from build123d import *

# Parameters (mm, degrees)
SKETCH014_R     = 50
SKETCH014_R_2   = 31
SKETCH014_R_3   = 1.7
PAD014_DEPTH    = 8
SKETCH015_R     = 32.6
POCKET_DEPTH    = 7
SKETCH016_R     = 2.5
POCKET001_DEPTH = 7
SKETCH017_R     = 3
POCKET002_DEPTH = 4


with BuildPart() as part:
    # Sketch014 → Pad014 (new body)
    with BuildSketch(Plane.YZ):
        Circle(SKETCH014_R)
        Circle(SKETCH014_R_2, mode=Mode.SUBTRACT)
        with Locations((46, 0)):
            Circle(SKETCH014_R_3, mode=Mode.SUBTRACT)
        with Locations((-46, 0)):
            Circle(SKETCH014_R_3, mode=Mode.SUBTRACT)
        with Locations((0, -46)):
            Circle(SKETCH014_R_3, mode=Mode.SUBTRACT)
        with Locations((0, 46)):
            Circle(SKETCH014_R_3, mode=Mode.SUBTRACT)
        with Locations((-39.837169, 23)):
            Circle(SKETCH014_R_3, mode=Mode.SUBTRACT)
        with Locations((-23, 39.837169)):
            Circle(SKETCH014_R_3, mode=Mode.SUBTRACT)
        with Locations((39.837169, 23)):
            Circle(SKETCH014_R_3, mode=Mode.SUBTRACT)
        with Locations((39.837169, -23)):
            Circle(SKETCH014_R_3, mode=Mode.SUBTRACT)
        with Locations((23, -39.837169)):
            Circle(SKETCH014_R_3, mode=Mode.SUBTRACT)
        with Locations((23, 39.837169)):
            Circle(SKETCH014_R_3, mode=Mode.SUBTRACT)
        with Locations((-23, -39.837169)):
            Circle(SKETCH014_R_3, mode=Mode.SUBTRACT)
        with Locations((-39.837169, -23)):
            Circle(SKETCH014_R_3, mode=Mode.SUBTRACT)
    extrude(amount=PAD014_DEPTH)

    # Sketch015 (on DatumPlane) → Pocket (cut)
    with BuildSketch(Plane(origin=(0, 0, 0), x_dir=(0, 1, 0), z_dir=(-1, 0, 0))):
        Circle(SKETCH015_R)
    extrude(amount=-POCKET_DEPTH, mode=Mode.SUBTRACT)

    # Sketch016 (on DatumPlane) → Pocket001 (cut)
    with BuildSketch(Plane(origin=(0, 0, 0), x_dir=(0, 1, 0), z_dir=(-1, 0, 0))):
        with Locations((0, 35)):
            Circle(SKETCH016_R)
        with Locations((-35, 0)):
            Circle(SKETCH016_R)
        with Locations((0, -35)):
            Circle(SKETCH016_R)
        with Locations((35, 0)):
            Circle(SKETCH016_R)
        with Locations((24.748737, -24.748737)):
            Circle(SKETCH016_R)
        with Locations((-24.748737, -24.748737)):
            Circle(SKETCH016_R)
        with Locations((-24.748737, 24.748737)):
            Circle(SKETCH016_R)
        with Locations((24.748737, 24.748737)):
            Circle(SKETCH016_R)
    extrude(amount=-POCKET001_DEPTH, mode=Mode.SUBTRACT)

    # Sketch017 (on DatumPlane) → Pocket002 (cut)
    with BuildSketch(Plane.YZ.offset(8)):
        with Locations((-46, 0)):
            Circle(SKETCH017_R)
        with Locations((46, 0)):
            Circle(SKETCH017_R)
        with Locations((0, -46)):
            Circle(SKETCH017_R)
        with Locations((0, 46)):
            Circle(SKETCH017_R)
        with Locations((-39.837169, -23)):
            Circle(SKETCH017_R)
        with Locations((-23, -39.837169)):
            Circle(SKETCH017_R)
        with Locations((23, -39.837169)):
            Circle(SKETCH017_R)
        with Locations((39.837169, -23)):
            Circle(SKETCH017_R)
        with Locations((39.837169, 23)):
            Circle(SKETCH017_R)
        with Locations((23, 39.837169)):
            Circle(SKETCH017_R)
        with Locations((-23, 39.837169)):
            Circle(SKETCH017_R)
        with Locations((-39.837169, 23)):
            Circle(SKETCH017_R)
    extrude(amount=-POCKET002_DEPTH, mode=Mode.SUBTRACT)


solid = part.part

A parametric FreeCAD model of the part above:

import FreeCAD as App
import Part
import Sketcher
Q = App.Units.Quantity

doc = App.newDocument("Part")
body = doc.addObject("PartDesign::Body", "Body")

sketch1 = body.newObject("Sketcher::SketchObject", "Sketch")
sketch1.AttachmentSupport = (doc.getObject("YZ_Plane"), [""])
sketch1.MapMode = "FlatFace"
sketch1.addGeometry(Part.Circle(App.Vector(0, 0, 0), App.Vector(0, 0, 1), 50), False)
sketch1.addGeometry(Part.Circle(App.Vector(-23, -39.8, 0), App.Vector(0, 0, 1), 1.7), False)
sketch1.addGeometry(Part.Circle(App.Vector(-39.8, -23, 0), App.Vector(0, 0, 1), 1.7), False)
sketch1.addGeometry(Part.Circle(App.Vector(0, -46, 0), App.Vector(0, 0, 1), 1.7), False)
sketch1.addGeometry(Part.Circle(App.Vector(23, -39.8, 0), App.Vector(0, 0, 1), 1.7), False)
sketch1.addGeometry(Part.Circle(App.Vector(39.8, -23, 0), App.Vector(0, 0, 1), 1.7), False)
sketch1.addGeometry(Part.Circle(App.Vector(-46, 0, 0), App.Vector(0, 0, 1), 1.7), False)
sketch1.addGeometry(Part.Circle(App.Vector(-39.8, 23, 0), App.Vector(0, 0, 1), 1.7), False)
sketch1.addGeometry(Part.Circle(App.Vector(-23, 39.8, 0), App.Vector(0, 0, 1), 1.7), False)
sketch1.addGeometry(Part.Circle(App.Vector(0, 0, 0), App.Vector(0, 0, 1), 31), False)
sketch1.addGeometry(Part.Circle(App.Vector(46, 0, 0), App.Vector(0, 0, 1), 1.7), False)
sketch1.addGeometry(Part.Circle(App.Vector(39.8, 23, 0), App.Vector(0, 0, 1), 1.7), False)
sketch1.addGeometry(Part.Circle(App.Vector(0, 46, 0), App.Vector(0, 0, 1), 1.7), False)
sketch1.addGeometry(Part.Circle(App.Vector(23, 39.8, 0), App.Vector(0, 0, 1), 1.7), False)
sketch1.addConstraint(Sketcher.Constraint("Coincident", 0, 3, -1, 1))
sketch1.addConstraint(Sketcher.Constraint("Coincident", 9, 3, -1, 1))
sketch1.addConstraint(Sketcher.Constraint("Equal", 1, 2))
sketch1.addConstraint(Sketcher.Constraint("Equal", 2, 3))
sketch1.addConstraint(Sketcher.Constraint("Equal", 3, 4))
sketch1.addConstraint(Sketcher.Constraint("Equal", 4, 5))
sketch1.addConstraint(Sketcher.Constraint("Equal", 5, 6))
sketch1.addConstraint(Sketcher.Constraint("Equal", 6, 7))
sketch1.addConstraint(Sketcher.Constraint("Equal", 7, 8))
sketch1.addConstraint(Sketcher.Constraint("Equal", 8, 10))
sketch1.addConstraint(Sketcher.Constraint("Equal", 10, 11))
sketch1.addConstraint(Sketcher.Constraint("Equal", 11, 12))
sketch1.addConstraint(Sketcher.Constraint("Equal", 12, 13))
sketch1.addConstraint(Sketcher.Constraint("Symmetric", 5, 3, 7, 3, -1, 1))
sketch1.addConstraint(Sketcher.Constraint("Symmetric", 4, 3, 8, 3, -1, 1))
sketch1.addConstraint(Sketcher.Constraint("Symmetric", 6, 3, 10, 3, -1, 1))
sketch1.addConstraint(Sketcher.Constraint("Symmetric", 2, 3, 11, 3, -1, 1))
sketch1.addConstraint(Sketcher.Constraint("Symmetric", 3, 3, 12, 3, -1, 1))
sketch1.addConstraint(Sketcher.Constraint("Symmetric", 1, 3, 13, 3, -1, 1))
sketch1.addConstraint(Sketcher.Constraint("Symmetric", 1, 3, 4, 3, -2))
sketch1.addConstraint(Sketcher.Constraint("Symmetric", 2, 3, 5, 3, -2))
sketch1.addConstraint(Sketcher.Constraint("PointOnObject", 3, 3, -2))
sketch1.addConstraint(Sketcher.Constraint("PointOnObject", 6, 3, -1))
sketch1.addConstraint(Sketcher.Constraint("Diameter", 0, Q("100 mm")))
sketch1.addConstraint(Sketcher.Constraint("Diameter", 9, Q("62 mm")))
sketch1.addConstraint(Sketcher.Constraint("Diameter", 1, Q("3.4 mm")))
sketch1.addConstraint(Sketcher.Constraint("DistanceX", 1, 3, -1, 1, Q("23 mm")))
sketch1.addConstraint(Sketcher.Constraint("DistanceY", 2, 3, -1, 1, Q("23 mm")))
sketch1.addConstraint(Sketcher.Constraint("DistanceY", 3, 3, -1, 1, Q("46 mm")))
sketch1.addConstraint(Sketcher.Constraint("DistanceX", 6, 3, -1, 1, Q("46 mm")))
sketch1.addConstraint(Sketcher.Constraint("DistanceY", 1, 3, -1, 1, Q("39.837169 mm")))
sketch1.addConstraint(Sketcher.Constraint("DistanceX", 2, 3, -1, 1, Q("39.837169 mm")))
pad1 = body.newObject("PartDesign::Pad", "Pad")
pad1.Profile = sketch1
pad1.Length = 8

sketch2 = body.newObject("Sketcher::SketchObject", "Sketch001")
sketch2.AttachmentSupport = (doc.getObject("YZ_Plane"), [""])
sketch2.MapMode = "FlatFace"
sketch2.addGeometry(Part.Circle(App.Vector(0, 0, 0), App.Vector(0, 0, 1), 33), False)
sketch2.addConstraint(Sketcher.Constraint("Coincident", 0, 3, -1, 1))
sketch2.addConstraint(Sketcher.Constraint("Diameter", 0, Q("65.2 mm")))
pocket1 = body.newObject("PartDesign::Pocket", "Pocket")
pocket1.Profile = sketch2
pocket1.Length = 7
pocket1.Reversed = True

sketch3 = body.newObject("Sketcher::SketchObject", "Sketch002")
sketch3.AttachmentSupport = (doc.getObject("YZ_Plane"), [""])
sketch3.MapMode = "FlatFace"
sketch3.addGeometry(Part.Circle(App.Vector(0, -35, 0), App.Vector(0, 0, 1), 2.5), False)
sketch3.addGeometry(Part.Circle(App.Vector(-35, 0, 0), App.Vector(0, 0, 1), 2.5), False)
sketch3.addGeometry(Part.Circle(App.Vector(0, 35, 0), App.Vector(0, 0, 1), 2.5), False)
sketch3.addGeometry(Part.Circle(App.Vector(35, 0, 0), App.Vector(0, 0, 1), 2.5), False)
sketch3.addGeometry(Part.Circle(App.Vector(24.7, 24.7, 0), App.Vector(0, 0, 1), 2.5), False)
sketch3.addGeometry(Part.Circle(App.Vector(-24.7, 24.7, 0), App.Vector(0, 0, 1), 2.5), False)
sketch3.addGeometry(Part.Circle(App.Vector(-24.7, -24.7, 0), App.Vector(0, 0, 1), 2.5), False)
sketch3.addGeometry(Part.Circle(App.Vector(24.7, -24.7, 0), App.Vector(0, 0, 1), 2.5), False)
sketch3.addConstraint(Sketcher.Constraint("Equal", 0, 1))
sketch3.addConstraint(Sketcher.Constraint("Equal", 1, 2))
sketch3.addConstraint(Sketcher.Constraint("Equal", 2, 3))
sketch3.addConstraint(Sketcher.Constraint("Equal", 3, 4))
sketch3.addConstraint(Sketcher.Constraint("Equal", 4, 5))
sketch3.addConstraint(Sketcher.Constraint("Equal", 5, 6))
sketch3.addConstraint(Sketcher.Constraint("Equal", 6, 7))
sketch3.addConstraint(Sketcher.Constraint("Symmetric", 0, 3, 2, 3, -1, 1))
sketch3.addConstraint(Sketcher.Constraint("Symmetric", 1, 3, 3, 3, -1, 1))
sketch3.addConstraint(Sketcher.Constraint("Symmetric", 4, 3, 6, 3, -1, 1))
sketch3.addConstraint(Sketcher.Constraint("Symmetric", 5, 3, 7, 3, -1, 1))
sketch3.addConstraint(Sketcher.Constraint("Symmetric", 4, 3, 5, 3, -2))
sketch3.addConstraint(Sketcher.Constraint("PointOnObject", 0, 3, -2))
sketch3.addConstraint(Sketcher.Constraint("PointOnObject", 1, 3, -1))
sketch3.addConstraint(Sketcher.Constraint("Diameter", 0, Q("5 mm")))
sketch3.addConstraint(Sketcher.Constraint("DistanceY", 0, 3, -1, 1, Q("35 mm")))
sketch3.addConstraint(Sketcher.Constraint("DistanceX", 1, 3, -1, 1, Q("35 mm")))
sketch3.addConstraint(Sketcher.Constraint("DistanceX", -1, 1, 4, 3, Q("24.748737 mm")))
sketch3.addConstraint(Sketcher.Constraint("DistanceY", -1, 1, 4, 3, Q("24.748737 mm")))
pocket2 = body.newObject("PartDesign::Pocket", "Pocket001")
pocket2.Profile = sketch3
pocket2.Length = 7
pocket2.Reversed = True

sketch4 = body.newObject("Sketcher::SketchObject", "Sketch003")
sketch4.AttachmentSupport = (doc.getObject("YZ_Plane"), [""])
sketch4.MapMode = "FlatFace"
sketch4.AttachmentOffset = App.Placement(App.Vector(0, 0, 8), App.Rotation())
sketch4.addGeometry(Part.Circle(App.Vector(-46, 0, 0), App.Vector(0, 0, 1), 3), False)
sketch4.addGeometry(Part.Circle(App.Vector(46, 0, 0), App.Vector(0, 0, 1), 3), False)
sketch4.addGeometry(Part.Circle(App.Vector(0, -46, 0), App.Vector(0, 0, 1), 3), False)
sketch4.addGeometry(Part.Circle(App.Vector(0, 46, 0), App.Vector(0, 0, 1), 3), False)
sketch4.addGeometry(Part.Circle(App.Vector(-39.8, -23, 0), App.Vector(0, 0, 1), 3), False)
sketch4.addGeometry(Part.Circle(App.Vector(-23, -39.8, 0), App.Vector(0, 0, 1), 3), False)
sketch4.addGeometry(Part.Circle(App.Vector(23, -39.8, 0), App.Vector(0, 0, 1), 3), False)
sketch4.addGeometry(Part.Circle(App.Vector(39.8, -23, 0), App.Vector(0, 0, 1), 3), False)
sketch4.addGeometry(Part.Circle(App.Vector(39.8, 23, 0), App.Vector(0, 0, 1), 3), False)
sketch4.addGeometry(Part.Circle(App.Vector(23, 39.8, 0), App.Vector(0, 0, 1), 3), False)
sketch4.addGeometry(Part.Circle(App.Vector(-23, 39.8, 0), App.Vector(0, 0, 1), 3), False)
sketch4.addGeometry(Part.Circle(App.Vector(-39.8, 23, 0), App.Vector(0, 0, 1), 3), False)
sketch4.addConstraint(Sketcher.Constraint("Equal", 0, 1))
sketch4.addConstraint(Sketcher.Constraint("Equal", 1, 2))
sketch4.addConstraint(Sketcher.Constraint("Equal", 2, 3))
sketch4.addConstraint(Sketcher.Constraint("Equal", 3, 4))
sketch4.addConstraint(Sketcher.Constraint("Equal", 4, 5))
sketch4.addConstraint(Sketcher.Constraint("Equal", 5, 6))
sketch4.addConstraint(Sketcher.Constraint("Equal", 6, 7))
sketch4.addConstraint(Sketcher.Constraint("Equal", 7, 8))
sketch4.addConstraint(Sketcher.Constraint("Equal", 8, 9))
sketch4.addConstraint(Sketcher.Constraint("Equal", 9, 10))
sketch4.addConstraint(Sketcher.Constraint("Equal", 10, 11))
sketch4.addConstraint(Sketcher.Constraint("Symmetric", 0, 3, 1, 3, -1, 1))
sketch4.addConstraint(Sketcher.Constraint("Symmetric", 2, 3, 3, 3, -1, 1))
sketch4.addConstraint(Sketcher.Constraint("Symmetric", 4, 3, 8, 3, -1, 1))
sketch4.addConstraint(Sketcher.Constraint("Symmetric", 5, 3, 9, 3, -1, 1))
sketch4.addConstraint(Sketcher.Constraint("Symmetric", 6, 3, 10, 3, -1, 1))
sketch4.addConstraint(Sketcher.Constraint("Symmetric", 7, 3, 11, 3, -1, 1))
sketch4.addConstraint(Sketcher.Constraint("Symmetric", 5, 3, 6, 3, -2))
sketch4.addConstraint(Sketcher.Constraint("Symmetric", 4, 3, 7, 3, -2))
sketch4.addConstraint(Sketcher.Constraint("PointOnObject", 0, 3, -1))
sketch4.addConstraint(Sketcher.Constraint("PointOnObject", 2, 3, -2))
sketch4.addConstraint(Sketcher.Constraint("Diameter", 0, Q("6 mm")))
sketch4.addConstraint(Sketcher.Constraint("DistanceX", 0, 3, -1, 1, Q("46 mm")))
sketch4.addConstraint(Sketcher.Constraint("DistanceY", 2, 3, -1, 1, Q("46 mm")))
sketch4.addConstraint(Sketcher.Constraint("DistanceY", 4, 3, -1, 1, Q("23 mm")))
sketch4.addConstraint(Sketcher.Constraint("DistanceX", 5, 3, -1, 1, Q("23 mm")))
sketch4.addConstraint(Sketcher.Constraint("DistanceX", 4, 3, -1, 1, Q("39.837169 mm")))
sketch4.addConstraint(Sketcher.Constraint("DistanceY", 5, 3, -1, 1, Q("39.837169 mm")))
pocket3 = body.newObject("PartDesign::Pocket", "Pocket002")
pocket3.Profile = sketch4
pocket3.Length = 4

doc.recompute()
